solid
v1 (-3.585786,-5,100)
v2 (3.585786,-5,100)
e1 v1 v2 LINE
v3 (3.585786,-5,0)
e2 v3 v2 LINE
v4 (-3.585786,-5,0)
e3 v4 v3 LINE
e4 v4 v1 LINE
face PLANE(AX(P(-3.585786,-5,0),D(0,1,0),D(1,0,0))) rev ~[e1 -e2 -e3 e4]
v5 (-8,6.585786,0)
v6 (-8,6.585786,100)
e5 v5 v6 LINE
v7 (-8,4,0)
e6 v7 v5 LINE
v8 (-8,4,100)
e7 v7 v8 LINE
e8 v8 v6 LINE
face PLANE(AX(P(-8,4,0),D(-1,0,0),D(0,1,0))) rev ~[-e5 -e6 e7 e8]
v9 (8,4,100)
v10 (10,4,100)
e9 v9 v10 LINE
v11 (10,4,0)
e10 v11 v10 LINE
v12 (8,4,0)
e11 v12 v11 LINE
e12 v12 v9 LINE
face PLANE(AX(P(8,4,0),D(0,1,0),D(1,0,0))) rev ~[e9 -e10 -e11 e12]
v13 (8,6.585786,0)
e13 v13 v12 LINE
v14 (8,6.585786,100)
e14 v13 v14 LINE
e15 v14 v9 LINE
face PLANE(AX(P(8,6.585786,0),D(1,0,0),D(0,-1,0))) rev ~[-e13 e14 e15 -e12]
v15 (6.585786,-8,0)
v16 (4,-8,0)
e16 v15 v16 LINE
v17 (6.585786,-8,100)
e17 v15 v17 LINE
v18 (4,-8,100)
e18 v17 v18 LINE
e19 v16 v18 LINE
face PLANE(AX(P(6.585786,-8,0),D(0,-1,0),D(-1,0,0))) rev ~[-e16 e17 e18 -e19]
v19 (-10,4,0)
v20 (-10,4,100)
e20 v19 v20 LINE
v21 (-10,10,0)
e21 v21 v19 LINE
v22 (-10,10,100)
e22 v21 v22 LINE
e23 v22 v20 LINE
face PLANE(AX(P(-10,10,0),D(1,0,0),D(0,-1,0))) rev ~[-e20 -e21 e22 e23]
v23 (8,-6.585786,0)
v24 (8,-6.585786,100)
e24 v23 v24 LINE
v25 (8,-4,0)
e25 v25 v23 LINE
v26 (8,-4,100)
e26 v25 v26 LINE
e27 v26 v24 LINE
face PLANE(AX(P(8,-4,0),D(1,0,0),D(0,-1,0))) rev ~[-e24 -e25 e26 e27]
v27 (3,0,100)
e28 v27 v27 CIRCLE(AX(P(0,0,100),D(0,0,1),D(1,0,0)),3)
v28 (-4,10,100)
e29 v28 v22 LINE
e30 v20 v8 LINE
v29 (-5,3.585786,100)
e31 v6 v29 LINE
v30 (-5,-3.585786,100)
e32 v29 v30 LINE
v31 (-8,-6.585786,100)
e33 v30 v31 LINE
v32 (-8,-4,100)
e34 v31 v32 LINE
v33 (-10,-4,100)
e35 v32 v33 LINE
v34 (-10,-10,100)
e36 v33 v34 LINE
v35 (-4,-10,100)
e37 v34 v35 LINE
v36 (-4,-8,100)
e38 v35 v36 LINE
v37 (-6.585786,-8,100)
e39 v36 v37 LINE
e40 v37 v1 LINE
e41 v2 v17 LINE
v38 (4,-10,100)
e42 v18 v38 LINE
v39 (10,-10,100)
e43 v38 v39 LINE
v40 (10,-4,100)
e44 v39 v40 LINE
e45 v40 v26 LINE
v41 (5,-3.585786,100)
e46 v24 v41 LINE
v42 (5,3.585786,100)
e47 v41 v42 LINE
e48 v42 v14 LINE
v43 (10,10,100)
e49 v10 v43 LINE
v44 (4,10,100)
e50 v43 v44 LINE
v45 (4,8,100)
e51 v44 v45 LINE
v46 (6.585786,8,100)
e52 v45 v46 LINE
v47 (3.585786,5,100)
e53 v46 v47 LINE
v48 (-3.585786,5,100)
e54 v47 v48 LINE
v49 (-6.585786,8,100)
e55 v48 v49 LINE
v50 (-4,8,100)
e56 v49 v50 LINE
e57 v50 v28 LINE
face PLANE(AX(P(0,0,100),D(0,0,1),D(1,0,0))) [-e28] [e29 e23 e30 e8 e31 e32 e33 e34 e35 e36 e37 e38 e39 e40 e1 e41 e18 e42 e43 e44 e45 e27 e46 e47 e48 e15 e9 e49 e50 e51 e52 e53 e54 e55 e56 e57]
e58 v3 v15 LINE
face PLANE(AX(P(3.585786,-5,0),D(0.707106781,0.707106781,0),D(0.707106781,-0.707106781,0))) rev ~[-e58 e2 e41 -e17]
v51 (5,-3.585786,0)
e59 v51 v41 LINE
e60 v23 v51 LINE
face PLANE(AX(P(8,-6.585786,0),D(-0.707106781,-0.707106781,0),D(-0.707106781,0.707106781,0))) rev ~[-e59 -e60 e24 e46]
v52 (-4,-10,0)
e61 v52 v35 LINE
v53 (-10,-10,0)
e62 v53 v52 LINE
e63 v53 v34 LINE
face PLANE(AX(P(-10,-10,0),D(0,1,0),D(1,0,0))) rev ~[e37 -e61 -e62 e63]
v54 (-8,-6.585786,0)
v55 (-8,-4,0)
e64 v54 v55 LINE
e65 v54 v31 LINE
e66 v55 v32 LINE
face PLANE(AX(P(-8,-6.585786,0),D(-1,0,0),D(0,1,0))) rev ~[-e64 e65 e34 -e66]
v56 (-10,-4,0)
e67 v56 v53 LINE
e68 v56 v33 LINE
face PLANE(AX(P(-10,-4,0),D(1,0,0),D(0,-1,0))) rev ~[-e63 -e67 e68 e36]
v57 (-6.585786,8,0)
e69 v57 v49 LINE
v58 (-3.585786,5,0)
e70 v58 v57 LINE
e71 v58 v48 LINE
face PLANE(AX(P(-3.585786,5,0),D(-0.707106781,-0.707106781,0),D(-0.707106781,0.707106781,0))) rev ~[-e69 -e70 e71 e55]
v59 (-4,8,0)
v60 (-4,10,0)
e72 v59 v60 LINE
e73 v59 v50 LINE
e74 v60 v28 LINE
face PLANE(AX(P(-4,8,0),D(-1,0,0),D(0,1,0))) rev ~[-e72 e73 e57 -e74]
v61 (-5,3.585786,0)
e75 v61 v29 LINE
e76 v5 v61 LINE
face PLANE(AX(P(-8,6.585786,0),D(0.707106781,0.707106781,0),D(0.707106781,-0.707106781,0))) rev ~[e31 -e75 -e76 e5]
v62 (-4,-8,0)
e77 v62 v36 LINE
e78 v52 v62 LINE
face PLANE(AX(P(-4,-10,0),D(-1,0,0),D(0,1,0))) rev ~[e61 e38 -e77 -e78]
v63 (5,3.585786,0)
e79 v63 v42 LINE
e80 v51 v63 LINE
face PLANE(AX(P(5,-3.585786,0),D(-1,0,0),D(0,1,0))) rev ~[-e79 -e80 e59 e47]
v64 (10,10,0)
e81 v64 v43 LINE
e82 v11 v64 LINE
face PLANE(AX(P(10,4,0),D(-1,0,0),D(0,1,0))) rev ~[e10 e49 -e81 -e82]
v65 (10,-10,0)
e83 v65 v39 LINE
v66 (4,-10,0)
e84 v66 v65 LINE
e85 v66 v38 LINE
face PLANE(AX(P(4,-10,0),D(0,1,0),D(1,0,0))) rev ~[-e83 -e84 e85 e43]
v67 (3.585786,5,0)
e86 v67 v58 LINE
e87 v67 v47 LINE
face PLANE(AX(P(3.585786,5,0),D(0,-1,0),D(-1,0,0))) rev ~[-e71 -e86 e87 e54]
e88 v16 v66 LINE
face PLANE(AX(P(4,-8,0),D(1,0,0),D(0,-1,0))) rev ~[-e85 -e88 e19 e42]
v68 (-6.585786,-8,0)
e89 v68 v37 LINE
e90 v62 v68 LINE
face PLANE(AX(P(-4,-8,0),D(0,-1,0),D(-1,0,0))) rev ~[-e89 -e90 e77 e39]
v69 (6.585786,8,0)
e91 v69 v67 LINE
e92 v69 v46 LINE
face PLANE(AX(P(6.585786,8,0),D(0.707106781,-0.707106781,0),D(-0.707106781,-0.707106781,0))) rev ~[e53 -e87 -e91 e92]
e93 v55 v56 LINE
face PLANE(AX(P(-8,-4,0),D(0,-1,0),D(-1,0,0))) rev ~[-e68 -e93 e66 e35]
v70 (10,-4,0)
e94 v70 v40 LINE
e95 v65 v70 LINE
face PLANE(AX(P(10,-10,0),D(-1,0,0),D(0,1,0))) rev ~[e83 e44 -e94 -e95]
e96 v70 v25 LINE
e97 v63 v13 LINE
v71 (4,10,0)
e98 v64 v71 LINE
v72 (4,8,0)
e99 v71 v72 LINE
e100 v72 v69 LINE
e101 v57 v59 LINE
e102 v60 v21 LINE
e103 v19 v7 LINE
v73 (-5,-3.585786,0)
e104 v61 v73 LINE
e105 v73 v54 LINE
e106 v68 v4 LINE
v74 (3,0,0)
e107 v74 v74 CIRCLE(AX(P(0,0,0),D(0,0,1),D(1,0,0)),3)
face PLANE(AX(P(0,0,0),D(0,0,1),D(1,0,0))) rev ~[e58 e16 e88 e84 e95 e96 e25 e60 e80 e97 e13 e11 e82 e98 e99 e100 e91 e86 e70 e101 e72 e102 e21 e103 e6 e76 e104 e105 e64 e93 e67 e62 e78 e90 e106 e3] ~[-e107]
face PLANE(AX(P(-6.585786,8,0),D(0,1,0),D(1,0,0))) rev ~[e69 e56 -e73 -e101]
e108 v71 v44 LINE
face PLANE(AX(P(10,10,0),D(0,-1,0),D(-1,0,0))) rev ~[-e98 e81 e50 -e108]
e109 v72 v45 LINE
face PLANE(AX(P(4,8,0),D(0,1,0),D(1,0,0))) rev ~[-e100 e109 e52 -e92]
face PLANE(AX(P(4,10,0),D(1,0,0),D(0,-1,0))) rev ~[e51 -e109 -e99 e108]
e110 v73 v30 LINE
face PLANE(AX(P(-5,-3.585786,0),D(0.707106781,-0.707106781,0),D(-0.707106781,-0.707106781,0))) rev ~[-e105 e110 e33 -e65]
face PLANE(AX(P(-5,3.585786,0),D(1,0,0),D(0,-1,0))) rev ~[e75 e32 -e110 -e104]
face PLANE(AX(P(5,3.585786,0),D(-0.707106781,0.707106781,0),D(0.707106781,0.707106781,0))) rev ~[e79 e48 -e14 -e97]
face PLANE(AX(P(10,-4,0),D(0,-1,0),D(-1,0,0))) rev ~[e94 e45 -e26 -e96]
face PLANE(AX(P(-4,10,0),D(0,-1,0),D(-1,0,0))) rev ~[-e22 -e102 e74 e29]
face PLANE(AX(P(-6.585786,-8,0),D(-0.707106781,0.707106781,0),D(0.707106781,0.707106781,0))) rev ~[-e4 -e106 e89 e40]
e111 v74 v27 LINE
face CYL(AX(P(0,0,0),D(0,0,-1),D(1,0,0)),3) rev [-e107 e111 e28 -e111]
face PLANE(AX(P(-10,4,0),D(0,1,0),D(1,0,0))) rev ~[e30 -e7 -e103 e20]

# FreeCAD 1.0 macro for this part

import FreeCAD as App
import Part
import Sketcher

doc = App.newDocument("Part")
body = doc.addObject("PartDesign::Body", "Body")

# Sketch on XY plane
sketch1 = body.newObject("Sketcher::SketchObject", "Sketch")
sketch1.AttachmentSupport = (doc.getObject("XY_Plane"), [""])
sketch1.MapMode = "FlatFace"
sketch1.addGeometry(Part.LineSegment(App.Vector(-10, 4, 0), App.Vector(-8, 4, 0)), False)
sketch1.addGeometry(Part.LineSegment(App.Vector(-8, 4, 0), App.Vector(-8, 6.585786, 0)), False)
sketch1.addGeometry(Part.LineSegment(App.Vector(-8, 6.585786, 0), App.Vector(-5, 3.585786, 0)), False)
sketch1.addGeometry(Part.LineSegment(App.Vector(-5, 3.585786, 0), App.Vector(-5, -3.585786, 0)), False)
sketch1.addGeometry(Part.LineSegment(App.Vector(-5, -3.585786, 0), App.Vector(-8, -6.585786, 0)), False)
sketch1.addGeometry(Part.LineSegment(App.Vector(-8, -6.585786, 0), App.Vector(-8, -4, 0)), False)
sketch1.addGeometry(Part.LineSegment(App.Vector(-8, -4, 0), App.Vector(-10, -4, 0)), False)
sketch1.addGeometry(Part.LineSegment(App.Vector(-10, -4, 0), App.Vector(-10, -10, 0)), False)
sketch1.addGeometry(Part.LineSegment(App.Vector(-10, -10, 0), App.Vector(-4, -10, 0)), False)
sketch1.addGeometry(Part.LineSegment(App.Vector(-4, -10, 0), App.Vector(-4, -8, 0)), False)
sketch1.addGeometry(Part.LineSegment(App.Vector(-4, -8, 0), App.Vector(-6.585786, -8, 0)), False)
sketch1.addGeometry(Part.LineSegment(App.Vector(-6.585786, -8, 0), App.Vector(-3.585786, -5, 0)), False)
sketch1.addGeometry(Part.LineSegment(App.Vector(-3.585786, -5, 0), App.Vector(3.585786, -5, 0)), False)
sketch1.addGeometry(Part.LineSegment(App.Vector(3.585786, -5, 0), App.Vector(6.585786, -8, 0)), False)
sketch1.addGeometry(Part.LineSegment(App.Vector(6.585786, -8, 0), App.Vector(4, -8, 0)), False)
sketch1.addGeometry(Part.LineSegment(App.Vector(4, -8, 0), App.Vector(4, -10, 0)), False)
sketch1.addGeometry(Part.LineSegment(App.Vector(4, -10, 0), App.Vector(10, -10, 0)), False)
sketch1.addGeometry(Part.LineSegment(App.Vector(10, -10, 0), App.Vector(10, -4, 0)), False)
sketch1.addGeometry(Part.LineSegment(App.Vector(10, -4, 0), App.Vector(8, -4, 0)), False)
sketch1.addGeometry(Part.LineSegment(App.Vector(8, -4, 0), App.Vector(8, -6.585786, 0)), False)
sketch1.addGeometry(Part.LineSegment(App.Vector(8, -6.585786, 0), App.Vector(5, -3.585786, 0)), False)
sketch1.addGeometry(Part.LineSegment(App.Vector(5, -3.585786, 0), App.Vector(5, 3.585786, 0)), False)
sketch1.addGeometry(Part.LineSegment(App.Vector(5, 3.585786, 0), App.Vector(8, 6.585786, 0)), False)
sketch1.addGeometry(Part.LineSegment(App.Vector(8, 6.585786, 0), App.Vector(8, 4, 0)), False)
sketch1.addGeometry(Part.LineSegment(App.Vector(8, 4, 0), App.Vector(10, 4, 0)), False)
sketch1.addGeometry(Part.LineSegment(App.Vector(10, 4, 0), App.Vector(10, 10, 0)), False)
sketch1.addGeometry(Part.LineSegment(App.Vector(10, 10, 0), App.Vector(4, 10, 0)), False)
sketch1.addGeometry(Part.LineSegment(App.Vector(4, 10, 0), App.Vector(4, 8, 0)), False)
sketch1.addGeometry(Part.LineSegment(App.Vector(4, 8, 0), App.Vector(6.585786, 8, 0)), False)
sketch1.addGeometry(Part.LineSegment(App.Vector(6.585786, 8, 0), App.Vector(3.585786, 5, 0)), False)
sketch1.addGeometry(Part.LineSegment(App.Vector(3.585786, 5, 0), App.Vector(-3.585786, 5, 0)), False)
sketch1.addGeometry(Part.LineSegment(App.Vector(-3.585786, 5, 0), App.Vector(-6.585786, 8, 0)), False)
sketch1.addGeometry(Part.LineSegment(App.Vector(-6.585786, 8, 0), App.Vector(-4, 8, 0)), False)
sketch1.addGeometry(Part.LineSegment(App.Vector(-4, 8, 0), App.Vector(-4, 10, 0)), False)
sketch1.addGeometry(Part.LineSegment(App.Vector(-4, 10, 0), App.Vector(-10, 10, 0)), False)
sketch1.addGeometry(Part.LineSegment(App.Vector(-10, 10, 0), App.Vector(-10, 4, 0)), False)
sketch1.addGeometry(Part.Circle(App.Vector(0, 0, 0), App.Vector(0, 0, 1), 3), False)
sketch1.addConstraint(Sketcher.Constraint("Coincident", 0, 2, 1, 1))
sketch1.addConstraint(Sketcher.Constraint("Coincident", 1, 2, 2, 1))
sketch1.addConstraint(Sketcher.Constraint("Coincident", 2, 2, 3, 1))
sketch1.addConstraint(Sketcher.Constraint("Coincident", 3, 2, 4, 1))
sketch1.addConstraint(Sketcher.Constraint("Coincident", 4, 2, 5, 1))
sketch1.addConstraint(Sketcher.Constraint("Coincident", 5, 2, 6, 1))
sketch1.addConstraint(Sketcher.Constraint("Coincident", 6, 2, 7, 1))
sketch1.addConstraint(Sketcher.Constraint("Coincident", 7, 2, 8, 1))
sketch1.addConstraint(Sketcher.Constraint("Coincident", 8, 2, 9, 1))
sketch1.addConstraint(Sketcher.Constraint("Coincident", 9, 2, 10, 1))
sketch1.addConstraint(Sketcher.Constraint("Coincident", 10, 2, 11, 1))
sketch1.addConstraint(Sketcher.Constraint("Coincident", 11, 2, 12, 1))
sketch1.addConstraint(Sketcher.Constraint("Coincident", 12, 2, 13, 1))
sketch1.addConstraint(Sketcher.Constraint("Coincident", 13, 2, 14, 1))
sketch1.addConstraint(Sketcher.Constraint("Coincident", 14, 2, 15, 1))
sketch1.addConstraint(Sketcher.Constraint("Coincident", 15, 2, 16, 1))
sketch1.addConstraint(Sketcher.Constraint("Coincident", 16, 2, 17, 1))
sketch1.addConstraint(Sketcher.Constraint("Coincident", 17, 2, 18, 1))
sketch1.addConstraint(Sketcher.Constraint("Coincident", 18, 2, 19, 1))
sketch1.addConstraint(Sketcher.Constraint("Coincident", 19, 2, 20, 1))
sketch1.addConstraint(Sketcher.Constraint("Coincident", 20, 2, 21, 1))
sketch1.addConstraint(Sketcher.Constraint("Coincident", 21, 2, 22, 1))
sketch1.addConstraint(Sketcher.Constraint("Coincident", 22, 2, 23, 1))
sketch1.addConstraint(Sketcher.Constraint("Coincident", 23, 2, 24, 1))
sketch1.addConstraint(Sketcher.Constraint("Coincident", 24, 2, 25, 1))
sketch1.addConstraint(Sketcher.Constraint("Coincident", 25, 2, 26, 1))
sketch1.addConstraint(Sketcher.Constraint("Coincident", 26, 2, 27, 1))
sketch1.addConstraint(Sketcher.Constraint("Coincident", 27, 2, 28, 1))
sketch1.addConstraint(Sketcher.Constraint("Coincident", 28, 2, 29, 1))
sketch1.addConstraint(Sketcher.Constraint("Coincident", 29, 2, 30, 1))
sketch1.addConstraint(Sketcher.Constraint("Coincident", 30, 2, 31, 1))
sketch1.addConstraint(Sketcher.Constraint("Coincident", 31, 2, 32, 1))
sketch1.addConstraint(Sketcher.Constraint("Coincident", 32, 2, 33, 1))
sketch1.addConstraint(Sketcher.Constraint("Coincident", 33, 2, 34, 1))
sketch1.addConstraint(Sketcher.Constraint("Coincident", 34, 2, 35, 1))
sketch1.addConstraint(Sketcher.Constraint("Coincident", 35, 2, 0, 1))
sketch1.addConstraint(Sketcher.Constraint("Horizontal", 0))
sketch1.addConstraint(Sketcher.Constraint("Vertical", 1))
sketch1.addConstraint(Sketcher.Constraint("Vertical", 3))
sketch1.addConstraint(Sketcher.Constraint("Vertical", 5))
sketch1.addConstraint(Sketcher.Constraint("Horizontal", 6))
sketch1.addConstraint(Sketcher.Constraint("Vertical", 7))
sketch1.addConstraint(Sketcher.Constraint("Horizontal", 8))
sketch1.addConstraint(Sketcher.Constraint("Vertical", 9))
sketch1.addConstraint(Sketcher.Constraint("Horizontal", 10))
sketch1.addConstraint(Sketcher.Constraint("Horizontal", 12))
sketch1.addConstraint(Sketcher.Constraint("Horizontal", 14))
sketch1.addConstraint(Sketcher.Constraint("Vertical", 15))
sketch1.addConstraint(Sketcher.Constraint("Horizontal", 16))
sketch1.addConstraint(Sketcher.Constraint("Vertical", 17))
sketch1.addConstraint(Sketcher.Constraint("Horizontal", 18))
sketch1.addConstraint(Sketcher.Constraint("Vertical", 19))
sketch1.addConstraint(Sketcher.Constraint("Vertical", 21))
sketch1.addConstraint(Sketcher.Constraint("Vertical", 23))
sketch1.addConstraint(Sketcher.Constraint("Horizontal", 24))
sketch1.addConstraint(Sketcher.Constraint("Vertical", 25))
sketch1.addConstraint(Sketcher.Constraint("Horizontal", 26))
sketch1.addConstraint(Sketcher.Constraint("Vertical", 27))
sketch1.addConstraint(Sketcher.Constraint("Horizontal", 28))
sketch1.addConstraint(Sketcher.Constraint("Horizontal", 30))
sketch1.addConstraint(Sketcher.Constraint("Horizontal", 32))
sketch1.addConstraint(Sketcher.Constraint("Vertical", 33))
sketch1.addConstraint(Sketcher.Constraint("Horizontal", 34))
sketch1.addConstraint(Sketcher.Constraint("Vertical", 35))
sketch1.addConstraint(Sketcher.Constraint("Coincident", 36, 3, -1, 1))
sketch1.addConstraint(Sketcher.Constraint("Symmetric", 0, 2, 18, 2, -1, 1))
sketch1.addConstraint(Sketcher.Constraint("Symmetric", 2, 2, 20, 2, -1, 1))
sketch1.addConstraint(Sketcher.Constraint("Symmetric", 4, 2, 22, 2, -1, 1))
sketch1.addConstraint(Sketcher.Constraint("Symmetric", 6, 2, 24, 2, -1, 1))
sketch1.addConstraint(Sketcher.Constraint("Symmetric", 8, 2, 26, 2, -1, 1))
sketch1.addConstraint(Sketcher.Constraint("Symmetric", 10, 2, 28, 2, -1, 1))
sketch1.addConstraint(Sketcher.Constraint("Symmetric", 11, 2, 29, 2, -1, 1))
sketch1.addConstraint(Sketcher.Constraint("Symmetric", 13, 2, 31, 2, -1, 1))
sketch1.addConstraint(Sketcher.Constraint("Symmetric", 15, 2, 33, 2, -1, 1))
sketch1.addConstraint(Sketcher.Constraint("Symmetric", 10, 2, 13, 2, -2))
sketch1.addConstraint(Sketcher.Constraint("Symmetric", 8, 2, 15, 2, -2))
sketch1.addConstraint(Sketcher.Constraint("Symmetric", 6, 2, 17, 2, -2))
sketch1.addConstraint(Sketcher.Constraint("Symmetric", 4, 2, 19, 2, -2))
sketch1.addConstraint(Sketcher.Constraint("Perpendicular", 2, 4))
sketch1.addConstraint(Sketcher.Constraint("Parallel", 4, 11))
sketch1.addConstraint(Sketcher.Constraint("Perpendicular", 11, 13))
sketch1.addConstraint(Sketcher.Constraint("Parallel", 13, 20))
sketch1.addConstraint(Sketcher.Constraint("Perpendicular", 20, 22))
sketch1.addConstraint(Sketcher.Constraint("Perpendicular", 29, 31))
sketch1.addConstraint(Sketcher.Constraint("Horizontal", 3, 2, 20, 2))
sketch1.addConstraint(Sketcher.Constraint("Vertical", 7, 2, 34, 2))
sketch1.addConstraint(Sketcher.Constraint("Equal", 32, 1))
sketch1.addConstraint(Sketcher.Constraint("Equal", 30, 3))
sketch1.addConstraint(Sketcher.Constraint("Equal", 34, 7))
sketch1.addConstraint(Sketcher.Constraint("Equal", 24, 9))
sketch1.addConstraint(Sketcher.Constraint("Equal", 4, 11))
sketch1.addConstraint(Sketcher.Constraint("Diameter", 36, 6.0))
sketch1.addConstraint(Sketcher.Constraint("DistanceX", 0, 1, 0, 2, 2.0))
sketch1.addConstraint(Sketcher.Constraint("DistanceX", 8, 1, 8, 2, 6.0))
sketch1.addConstraint(Sketcher.Constraint("DistanceX", 0, 2, -1, 1, 8.0))
sketch1.addConstraint(Sketcher.Constraint("DistanceX", 2, 2, -1, 1, 5.0))
sketch1.addConstraint(Sketcher.Constraint("DistanceX", 10, 2, 10, 1, 2.585786))
pad1 = body.newObject("PartDesign::Pad", "Pad")
pad1.Profile = sketch1
pad1.Length = 100

doc.recompute()
